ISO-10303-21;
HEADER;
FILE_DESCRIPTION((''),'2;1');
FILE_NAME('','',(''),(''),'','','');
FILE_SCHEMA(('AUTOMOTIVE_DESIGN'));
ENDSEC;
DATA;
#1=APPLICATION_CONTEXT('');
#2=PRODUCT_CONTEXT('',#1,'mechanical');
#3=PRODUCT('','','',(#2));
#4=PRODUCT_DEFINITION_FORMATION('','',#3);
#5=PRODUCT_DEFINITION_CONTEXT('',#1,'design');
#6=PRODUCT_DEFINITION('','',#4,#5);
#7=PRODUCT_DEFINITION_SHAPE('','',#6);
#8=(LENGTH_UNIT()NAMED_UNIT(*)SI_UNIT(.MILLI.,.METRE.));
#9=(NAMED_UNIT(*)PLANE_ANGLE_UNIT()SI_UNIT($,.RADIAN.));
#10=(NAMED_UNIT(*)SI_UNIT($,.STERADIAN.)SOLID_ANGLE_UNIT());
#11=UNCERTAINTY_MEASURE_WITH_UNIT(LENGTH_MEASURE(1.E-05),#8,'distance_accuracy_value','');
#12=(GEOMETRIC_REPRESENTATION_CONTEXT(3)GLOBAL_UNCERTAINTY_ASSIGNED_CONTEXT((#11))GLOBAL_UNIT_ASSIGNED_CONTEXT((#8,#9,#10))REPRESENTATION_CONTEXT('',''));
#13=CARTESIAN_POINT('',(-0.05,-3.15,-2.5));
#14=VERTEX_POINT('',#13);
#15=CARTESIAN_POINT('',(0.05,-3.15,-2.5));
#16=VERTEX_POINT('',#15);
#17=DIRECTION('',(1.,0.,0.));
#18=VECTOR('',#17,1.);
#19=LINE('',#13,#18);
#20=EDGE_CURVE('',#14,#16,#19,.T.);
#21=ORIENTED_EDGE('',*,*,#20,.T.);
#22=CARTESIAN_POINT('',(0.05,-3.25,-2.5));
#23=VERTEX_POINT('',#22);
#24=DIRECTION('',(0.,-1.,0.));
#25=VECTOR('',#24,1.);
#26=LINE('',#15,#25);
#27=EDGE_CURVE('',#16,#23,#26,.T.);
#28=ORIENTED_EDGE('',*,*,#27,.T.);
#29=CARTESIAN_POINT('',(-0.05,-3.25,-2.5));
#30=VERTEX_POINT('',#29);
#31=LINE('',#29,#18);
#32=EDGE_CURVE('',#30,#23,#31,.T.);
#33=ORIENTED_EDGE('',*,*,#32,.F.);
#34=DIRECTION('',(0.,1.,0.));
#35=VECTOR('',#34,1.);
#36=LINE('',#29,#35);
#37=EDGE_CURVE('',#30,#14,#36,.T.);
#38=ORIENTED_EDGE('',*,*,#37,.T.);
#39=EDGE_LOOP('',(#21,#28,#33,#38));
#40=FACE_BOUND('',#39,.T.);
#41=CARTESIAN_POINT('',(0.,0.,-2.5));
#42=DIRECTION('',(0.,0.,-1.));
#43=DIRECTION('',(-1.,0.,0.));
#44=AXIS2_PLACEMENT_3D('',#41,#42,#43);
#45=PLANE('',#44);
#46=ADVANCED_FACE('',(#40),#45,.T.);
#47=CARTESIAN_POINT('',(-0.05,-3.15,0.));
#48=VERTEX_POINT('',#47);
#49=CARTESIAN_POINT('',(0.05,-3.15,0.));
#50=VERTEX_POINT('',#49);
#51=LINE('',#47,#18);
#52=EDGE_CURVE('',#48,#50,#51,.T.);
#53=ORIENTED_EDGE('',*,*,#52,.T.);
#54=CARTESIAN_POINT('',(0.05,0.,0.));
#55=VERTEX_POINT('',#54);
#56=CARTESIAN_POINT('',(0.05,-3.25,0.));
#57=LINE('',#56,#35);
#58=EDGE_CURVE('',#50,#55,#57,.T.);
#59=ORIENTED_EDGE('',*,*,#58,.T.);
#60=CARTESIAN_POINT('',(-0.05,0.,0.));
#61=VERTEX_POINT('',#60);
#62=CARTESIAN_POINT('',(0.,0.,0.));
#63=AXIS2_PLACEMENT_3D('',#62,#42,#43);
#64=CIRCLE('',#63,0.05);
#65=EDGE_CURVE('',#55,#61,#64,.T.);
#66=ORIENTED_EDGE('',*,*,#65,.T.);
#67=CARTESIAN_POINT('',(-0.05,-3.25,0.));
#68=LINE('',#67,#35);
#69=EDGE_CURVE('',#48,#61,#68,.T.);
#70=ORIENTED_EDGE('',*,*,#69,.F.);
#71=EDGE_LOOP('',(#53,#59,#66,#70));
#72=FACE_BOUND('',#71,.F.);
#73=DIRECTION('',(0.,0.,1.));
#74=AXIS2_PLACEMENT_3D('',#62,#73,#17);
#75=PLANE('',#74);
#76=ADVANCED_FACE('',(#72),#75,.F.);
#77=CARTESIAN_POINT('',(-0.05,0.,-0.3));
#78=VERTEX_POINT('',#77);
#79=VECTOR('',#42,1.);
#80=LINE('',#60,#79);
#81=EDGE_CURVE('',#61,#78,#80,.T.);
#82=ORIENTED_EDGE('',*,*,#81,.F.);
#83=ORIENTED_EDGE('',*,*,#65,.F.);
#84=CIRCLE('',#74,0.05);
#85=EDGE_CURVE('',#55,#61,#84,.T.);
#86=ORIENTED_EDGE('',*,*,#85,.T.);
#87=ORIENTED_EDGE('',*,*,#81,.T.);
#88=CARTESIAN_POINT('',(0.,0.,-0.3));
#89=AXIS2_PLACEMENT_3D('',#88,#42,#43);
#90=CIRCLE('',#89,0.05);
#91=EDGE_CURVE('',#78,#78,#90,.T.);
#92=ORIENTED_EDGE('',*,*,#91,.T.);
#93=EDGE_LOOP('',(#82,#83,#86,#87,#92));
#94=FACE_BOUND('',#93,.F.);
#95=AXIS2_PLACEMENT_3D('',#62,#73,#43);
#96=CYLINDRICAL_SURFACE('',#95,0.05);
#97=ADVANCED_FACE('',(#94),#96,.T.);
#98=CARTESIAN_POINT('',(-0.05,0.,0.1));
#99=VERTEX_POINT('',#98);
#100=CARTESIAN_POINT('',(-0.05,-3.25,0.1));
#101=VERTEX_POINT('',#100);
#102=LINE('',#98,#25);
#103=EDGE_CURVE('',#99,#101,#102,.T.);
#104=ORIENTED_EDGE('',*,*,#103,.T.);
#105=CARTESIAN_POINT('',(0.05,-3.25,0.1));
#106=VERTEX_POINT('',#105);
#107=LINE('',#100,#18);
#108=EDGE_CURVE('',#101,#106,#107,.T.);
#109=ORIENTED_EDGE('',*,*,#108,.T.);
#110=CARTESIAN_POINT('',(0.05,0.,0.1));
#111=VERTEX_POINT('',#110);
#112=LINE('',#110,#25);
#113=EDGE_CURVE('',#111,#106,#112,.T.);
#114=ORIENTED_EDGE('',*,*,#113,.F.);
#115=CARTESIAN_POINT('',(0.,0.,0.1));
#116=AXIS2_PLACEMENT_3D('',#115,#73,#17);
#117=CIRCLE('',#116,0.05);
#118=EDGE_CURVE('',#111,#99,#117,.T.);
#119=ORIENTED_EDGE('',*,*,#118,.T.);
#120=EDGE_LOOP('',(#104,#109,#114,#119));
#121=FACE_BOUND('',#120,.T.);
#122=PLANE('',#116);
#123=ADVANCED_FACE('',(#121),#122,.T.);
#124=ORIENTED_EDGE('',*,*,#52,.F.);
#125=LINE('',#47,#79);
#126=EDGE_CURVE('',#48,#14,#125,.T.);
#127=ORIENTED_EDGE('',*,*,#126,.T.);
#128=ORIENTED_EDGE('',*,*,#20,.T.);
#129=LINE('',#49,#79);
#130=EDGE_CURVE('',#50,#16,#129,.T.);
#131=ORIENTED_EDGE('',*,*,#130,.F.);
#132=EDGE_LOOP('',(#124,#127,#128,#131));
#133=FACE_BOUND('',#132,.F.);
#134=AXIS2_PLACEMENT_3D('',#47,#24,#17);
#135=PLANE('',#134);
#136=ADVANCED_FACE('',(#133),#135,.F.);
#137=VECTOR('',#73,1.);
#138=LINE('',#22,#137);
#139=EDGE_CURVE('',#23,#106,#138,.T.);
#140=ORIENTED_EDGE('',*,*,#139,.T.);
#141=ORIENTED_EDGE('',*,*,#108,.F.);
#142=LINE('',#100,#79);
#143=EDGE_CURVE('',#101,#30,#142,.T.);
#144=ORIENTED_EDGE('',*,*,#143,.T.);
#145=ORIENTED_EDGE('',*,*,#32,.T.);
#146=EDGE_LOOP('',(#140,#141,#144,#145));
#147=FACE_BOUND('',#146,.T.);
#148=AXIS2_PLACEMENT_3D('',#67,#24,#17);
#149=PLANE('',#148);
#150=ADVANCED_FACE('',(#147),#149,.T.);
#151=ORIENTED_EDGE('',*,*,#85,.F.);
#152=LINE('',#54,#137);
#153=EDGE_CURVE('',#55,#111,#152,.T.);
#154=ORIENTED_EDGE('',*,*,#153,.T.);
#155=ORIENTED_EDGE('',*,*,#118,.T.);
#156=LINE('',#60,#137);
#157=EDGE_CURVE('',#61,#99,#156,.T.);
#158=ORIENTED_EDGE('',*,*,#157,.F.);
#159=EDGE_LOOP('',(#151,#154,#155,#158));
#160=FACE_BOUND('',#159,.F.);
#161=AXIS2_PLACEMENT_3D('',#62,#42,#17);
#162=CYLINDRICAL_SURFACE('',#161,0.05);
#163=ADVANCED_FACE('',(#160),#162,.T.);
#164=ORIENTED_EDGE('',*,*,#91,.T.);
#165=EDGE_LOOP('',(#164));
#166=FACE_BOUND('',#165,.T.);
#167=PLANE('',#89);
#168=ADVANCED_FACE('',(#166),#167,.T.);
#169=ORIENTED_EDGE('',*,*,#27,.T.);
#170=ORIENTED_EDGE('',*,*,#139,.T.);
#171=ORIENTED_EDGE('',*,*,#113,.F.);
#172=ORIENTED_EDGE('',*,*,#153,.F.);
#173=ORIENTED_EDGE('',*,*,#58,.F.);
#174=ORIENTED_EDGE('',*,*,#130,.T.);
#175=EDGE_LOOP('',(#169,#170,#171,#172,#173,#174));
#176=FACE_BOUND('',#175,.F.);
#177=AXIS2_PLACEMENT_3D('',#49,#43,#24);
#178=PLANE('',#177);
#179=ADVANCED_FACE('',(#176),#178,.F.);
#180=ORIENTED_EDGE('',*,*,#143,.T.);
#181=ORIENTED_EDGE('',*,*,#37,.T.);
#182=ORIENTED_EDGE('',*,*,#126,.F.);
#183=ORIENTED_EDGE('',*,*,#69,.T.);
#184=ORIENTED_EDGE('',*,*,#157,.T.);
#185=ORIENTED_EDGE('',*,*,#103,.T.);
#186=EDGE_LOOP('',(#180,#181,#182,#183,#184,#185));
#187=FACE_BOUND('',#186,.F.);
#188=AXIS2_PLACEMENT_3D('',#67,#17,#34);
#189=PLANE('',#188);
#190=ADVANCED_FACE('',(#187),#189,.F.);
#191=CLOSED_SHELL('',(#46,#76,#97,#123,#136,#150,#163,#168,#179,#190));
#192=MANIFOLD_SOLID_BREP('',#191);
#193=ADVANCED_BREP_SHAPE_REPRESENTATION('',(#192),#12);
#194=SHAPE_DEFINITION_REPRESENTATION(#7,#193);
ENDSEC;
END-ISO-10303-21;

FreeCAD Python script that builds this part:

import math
import FreeCAD as App
import Part
import Sketcher
from FreeCAD import Vector


def add_polygon(sketch, points):
    """Adds a closed chain of lines whose ends are joined by coincident constraints."""
    first, n = sketch.GeometryCount, len(points)
    for a, b in zip(points, points[1:] + points[:1]):
        sketch.addGeometry(Part.LineSegment(App.Vector(*a, 0), App.Vector(*b, 0)), False)
    for i in range(n):
        sketch.addConstraint(Sketcher.Constraint("Coincident", first + i, 2, first + (i + 1) % n, 1))

doc = App.newDocument("Part")
params = doc.addObject("Spreadsheet::Sheet", "Params")
for row, (alias, value) in enumerate([
    ("sketch1_radius", "0.05 mm"),
    ("sketch1_height", "3.25 mm"),
    ("pad1_length", "0.1 mm"),
    ("sketch2_diameter", "0.1 mm"),
    ("pad2_length", "0.3 mm"),
    ("sketch3_width", "0.1 mm"),
    ("pad3_length", "2.5 mm"),
], start=1):
    params.set(f"A{row}", alias)
    params.set(f"B{row}", "=" + value)
    params.setAlias(f"B{row}", alias)

body = doc.addObject("PartDesign::Body", "Body")

sketch1 = body.newObject("Sketcher::SketchObject", "Sketch")
sketch1.AttachmentSupport = (doc.getObject("XY_Plane"), [""])
sketch1.MapMode = "FlatFace"
sketch1.addGeometry([
    Part.ArcOfCircle(Part.Circle(Vector(0, 0, 0), Vector(0, 0, 1), 0.05), math.radians(0), math.radians(180)),
    Part.LineSegment(Vector(-0.05, 0, 0), Vector(-0.05, -3.25, 0)),
    Part.LineSegment(Vector(-0.05, -3.25, 0), Vector(0.05, -3.25, 0)),
    Part.LineSegment(Vector(0.05, -3.25, 0), Vector(0.05, 0, 0)),
], False)
sketch1.addConstraint([
    Sketcher.Constraint("Tangent", 0, 2, 1, 1),
    Sketcher.Constraint("Coincident", 1, 2, 2, 1),
    Sketcher.Constraint("Coincident", 2, 2, 3, 1),
    Sketcher.Constraint("Tangent", 3, 2, 0, 1),
    Sketcher.Constraint("Vertical", 1),
    Sketcher.Constraint("Horizontal", 2),
    Sketcher.Constraint("Vertical", 3),
    Sketcher.Constraint("Coincident", 0, 3, -1, 1),
    Sketcher.Constraint("Radius", 0, 0.05),
    Sketcher.Constraint("DistanceY", 1, 2, 1, 1, 3.25),
])
sketch1.setExpression("Constraints[8]", "Params.sketch1_radius")
sketch1.setExpression("Constraints[9]", "Params.sketch1_height")
pad1 = body.newObject("PartDesign::Pad", "Pad")
pad1.Profile = sketch1
pad1.setExpression("Length", "Params.pad1_length")

sketch2 = body.newObject("Sketcher::SketchObject", "Sketch001")
sketch2.AttachmentSupport = (doc.getObject("XY_Plane"), [""])
sketch2.MapMode = "FlatFace"
sketch2.addGeometry(Part.Circle(Vector(0, 0, 0), Vector(0, 0, 1), 0.05), False)
sketch2.addConstraint([
    Sketcher.Constraint("Coincident", 0, 3, -1, 1),
    Sketcher.Constraint("Diameter", 0, 0.1),
])
sketch2.setExpression("Constraints[1]", "Params.sketch2_diameter")
pad2 = body.newObject("PartDesign::Pad", "Pad001")
pad2.Profile = sketch2
pad2.setExpression("Length", "Params.pad2_length")
pad2.Reversed = True

sketch3 = body.newObject("Sketcher::SketchObject", "Sketch002")
sketch3.AttachmentSupport = (doc.getObject("XY_Plane"), [""])
sketch3.MapMode = "FlatFace"
add_polygon(sketch3, [(0.05, -3.25), (-0.05, -3.25), (-0.05, -3.15), (0.05, -3.15)])
sketch3.addConstraint([
    Sketcher.Constraint("Horizontal", 0),
    Sketcher.Constraint("Vertical", 1),
    Sketcher.Constraint("Horizontal", 2),
    Sketcher.Constraint("Vertical", 3),
    Sketcher.Constraint("Equal", 2, 1),
    Sketcher.Constraint("DistanceX", 0, 2, 0, 1, 0.1),
    Sketcher.Constraint("DistanceX", 0, 2, -1, 1, 0.05),
    Sketcher.Constraint("DistanceY", 0, 2, -1, 1, 3.25),
])
sketch3.setExpression("Constraints[9]", "Params.sketch3_width")
pad3 = body.newObject("PartDesign::Pad", "Pad002")
pad3.Profile = sketch3
pad3.setExpression("Length", "Params.pad3_length")
pad3.Reversed = True

doc.recompute()
